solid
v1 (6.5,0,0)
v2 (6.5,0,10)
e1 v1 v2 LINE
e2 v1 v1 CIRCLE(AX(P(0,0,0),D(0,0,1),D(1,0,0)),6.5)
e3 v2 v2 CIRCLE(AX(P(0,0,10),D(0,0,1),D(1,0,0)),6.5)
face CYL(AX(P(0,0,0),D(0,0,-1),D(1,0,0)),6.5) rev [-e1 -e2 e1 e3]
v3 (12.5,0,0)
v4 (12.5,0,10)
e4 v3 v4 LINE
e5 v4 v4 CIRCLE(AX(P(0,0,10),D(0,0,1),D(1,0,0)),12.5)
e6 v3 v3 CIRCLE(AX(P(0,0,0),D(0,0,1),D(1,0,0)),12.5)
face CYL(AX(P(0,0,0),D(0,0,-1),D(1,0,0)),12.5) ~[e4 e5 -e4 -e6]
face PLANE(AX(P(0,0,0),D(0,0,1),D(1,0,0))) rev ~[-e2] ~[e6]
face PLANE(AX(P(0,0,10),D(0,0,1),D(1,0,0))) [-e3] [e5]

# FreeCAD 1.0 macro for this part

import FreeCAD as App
import Part
import Sketcher
Q = App.Units.Quantity

doc = App.newDocument("Part")
params = doc.addObject("Spreadsheet::Sheet", "Params")
for row, (alias, value) in enumerate([
    ("sketch1_diameter", "25 mm"),
    ("sketch1_diameter2", "13 mm"),
    ("pad1_length", "10 mm"),
], start=1):
    params.set(f"A{row}", alias)
    params.set(f"B{row}", "=" + value)
    params.setAlias(f"B{row}", alias)

body = doc.addObject("PartDesign::Body", "Body")

# Sketch on XY plane
sketch1 = body.newObject("Sketcher::SketchObject", "Sketch")
sketch1.AttachmentSupport = (doc.getObject("XY_Plane"), [""])
sketch1.MapMode = "FlatFace"
sketch1.addGeometry([
    Part.Circle(App.Vector(0, 0, 0), App.Vector(0, 0, 1), 12),
    Part.Circle(App.Vector(0, 0, 0), App.Vector(0, 0, 1), 6),
], False)
sketch1.addConstraint([
    Sketcher.Constraint("Coincident", 0, 3, -1, 1),
    Sketcher.Constraint("Coincident", 1, 3, -1, 1),
    Sketcher.Constraint("Diameter", 0, Q("25 mm")),
    Sketcher.Constraint("Diameter", 1, Q("13 mm")),
])
sketch1.setExpression("Constraints[2]", "Params.sketch1_diameter")
sketch1.setExpression("Constraints[3]", "Params.sketch1_diameter2")
pad1 = body.newObject("PartDesign::Pad", "Pad")
pad1.Profile = sketch1
pad1.setExpression("Length", "Params.pad1_length")

doc.recompute()
